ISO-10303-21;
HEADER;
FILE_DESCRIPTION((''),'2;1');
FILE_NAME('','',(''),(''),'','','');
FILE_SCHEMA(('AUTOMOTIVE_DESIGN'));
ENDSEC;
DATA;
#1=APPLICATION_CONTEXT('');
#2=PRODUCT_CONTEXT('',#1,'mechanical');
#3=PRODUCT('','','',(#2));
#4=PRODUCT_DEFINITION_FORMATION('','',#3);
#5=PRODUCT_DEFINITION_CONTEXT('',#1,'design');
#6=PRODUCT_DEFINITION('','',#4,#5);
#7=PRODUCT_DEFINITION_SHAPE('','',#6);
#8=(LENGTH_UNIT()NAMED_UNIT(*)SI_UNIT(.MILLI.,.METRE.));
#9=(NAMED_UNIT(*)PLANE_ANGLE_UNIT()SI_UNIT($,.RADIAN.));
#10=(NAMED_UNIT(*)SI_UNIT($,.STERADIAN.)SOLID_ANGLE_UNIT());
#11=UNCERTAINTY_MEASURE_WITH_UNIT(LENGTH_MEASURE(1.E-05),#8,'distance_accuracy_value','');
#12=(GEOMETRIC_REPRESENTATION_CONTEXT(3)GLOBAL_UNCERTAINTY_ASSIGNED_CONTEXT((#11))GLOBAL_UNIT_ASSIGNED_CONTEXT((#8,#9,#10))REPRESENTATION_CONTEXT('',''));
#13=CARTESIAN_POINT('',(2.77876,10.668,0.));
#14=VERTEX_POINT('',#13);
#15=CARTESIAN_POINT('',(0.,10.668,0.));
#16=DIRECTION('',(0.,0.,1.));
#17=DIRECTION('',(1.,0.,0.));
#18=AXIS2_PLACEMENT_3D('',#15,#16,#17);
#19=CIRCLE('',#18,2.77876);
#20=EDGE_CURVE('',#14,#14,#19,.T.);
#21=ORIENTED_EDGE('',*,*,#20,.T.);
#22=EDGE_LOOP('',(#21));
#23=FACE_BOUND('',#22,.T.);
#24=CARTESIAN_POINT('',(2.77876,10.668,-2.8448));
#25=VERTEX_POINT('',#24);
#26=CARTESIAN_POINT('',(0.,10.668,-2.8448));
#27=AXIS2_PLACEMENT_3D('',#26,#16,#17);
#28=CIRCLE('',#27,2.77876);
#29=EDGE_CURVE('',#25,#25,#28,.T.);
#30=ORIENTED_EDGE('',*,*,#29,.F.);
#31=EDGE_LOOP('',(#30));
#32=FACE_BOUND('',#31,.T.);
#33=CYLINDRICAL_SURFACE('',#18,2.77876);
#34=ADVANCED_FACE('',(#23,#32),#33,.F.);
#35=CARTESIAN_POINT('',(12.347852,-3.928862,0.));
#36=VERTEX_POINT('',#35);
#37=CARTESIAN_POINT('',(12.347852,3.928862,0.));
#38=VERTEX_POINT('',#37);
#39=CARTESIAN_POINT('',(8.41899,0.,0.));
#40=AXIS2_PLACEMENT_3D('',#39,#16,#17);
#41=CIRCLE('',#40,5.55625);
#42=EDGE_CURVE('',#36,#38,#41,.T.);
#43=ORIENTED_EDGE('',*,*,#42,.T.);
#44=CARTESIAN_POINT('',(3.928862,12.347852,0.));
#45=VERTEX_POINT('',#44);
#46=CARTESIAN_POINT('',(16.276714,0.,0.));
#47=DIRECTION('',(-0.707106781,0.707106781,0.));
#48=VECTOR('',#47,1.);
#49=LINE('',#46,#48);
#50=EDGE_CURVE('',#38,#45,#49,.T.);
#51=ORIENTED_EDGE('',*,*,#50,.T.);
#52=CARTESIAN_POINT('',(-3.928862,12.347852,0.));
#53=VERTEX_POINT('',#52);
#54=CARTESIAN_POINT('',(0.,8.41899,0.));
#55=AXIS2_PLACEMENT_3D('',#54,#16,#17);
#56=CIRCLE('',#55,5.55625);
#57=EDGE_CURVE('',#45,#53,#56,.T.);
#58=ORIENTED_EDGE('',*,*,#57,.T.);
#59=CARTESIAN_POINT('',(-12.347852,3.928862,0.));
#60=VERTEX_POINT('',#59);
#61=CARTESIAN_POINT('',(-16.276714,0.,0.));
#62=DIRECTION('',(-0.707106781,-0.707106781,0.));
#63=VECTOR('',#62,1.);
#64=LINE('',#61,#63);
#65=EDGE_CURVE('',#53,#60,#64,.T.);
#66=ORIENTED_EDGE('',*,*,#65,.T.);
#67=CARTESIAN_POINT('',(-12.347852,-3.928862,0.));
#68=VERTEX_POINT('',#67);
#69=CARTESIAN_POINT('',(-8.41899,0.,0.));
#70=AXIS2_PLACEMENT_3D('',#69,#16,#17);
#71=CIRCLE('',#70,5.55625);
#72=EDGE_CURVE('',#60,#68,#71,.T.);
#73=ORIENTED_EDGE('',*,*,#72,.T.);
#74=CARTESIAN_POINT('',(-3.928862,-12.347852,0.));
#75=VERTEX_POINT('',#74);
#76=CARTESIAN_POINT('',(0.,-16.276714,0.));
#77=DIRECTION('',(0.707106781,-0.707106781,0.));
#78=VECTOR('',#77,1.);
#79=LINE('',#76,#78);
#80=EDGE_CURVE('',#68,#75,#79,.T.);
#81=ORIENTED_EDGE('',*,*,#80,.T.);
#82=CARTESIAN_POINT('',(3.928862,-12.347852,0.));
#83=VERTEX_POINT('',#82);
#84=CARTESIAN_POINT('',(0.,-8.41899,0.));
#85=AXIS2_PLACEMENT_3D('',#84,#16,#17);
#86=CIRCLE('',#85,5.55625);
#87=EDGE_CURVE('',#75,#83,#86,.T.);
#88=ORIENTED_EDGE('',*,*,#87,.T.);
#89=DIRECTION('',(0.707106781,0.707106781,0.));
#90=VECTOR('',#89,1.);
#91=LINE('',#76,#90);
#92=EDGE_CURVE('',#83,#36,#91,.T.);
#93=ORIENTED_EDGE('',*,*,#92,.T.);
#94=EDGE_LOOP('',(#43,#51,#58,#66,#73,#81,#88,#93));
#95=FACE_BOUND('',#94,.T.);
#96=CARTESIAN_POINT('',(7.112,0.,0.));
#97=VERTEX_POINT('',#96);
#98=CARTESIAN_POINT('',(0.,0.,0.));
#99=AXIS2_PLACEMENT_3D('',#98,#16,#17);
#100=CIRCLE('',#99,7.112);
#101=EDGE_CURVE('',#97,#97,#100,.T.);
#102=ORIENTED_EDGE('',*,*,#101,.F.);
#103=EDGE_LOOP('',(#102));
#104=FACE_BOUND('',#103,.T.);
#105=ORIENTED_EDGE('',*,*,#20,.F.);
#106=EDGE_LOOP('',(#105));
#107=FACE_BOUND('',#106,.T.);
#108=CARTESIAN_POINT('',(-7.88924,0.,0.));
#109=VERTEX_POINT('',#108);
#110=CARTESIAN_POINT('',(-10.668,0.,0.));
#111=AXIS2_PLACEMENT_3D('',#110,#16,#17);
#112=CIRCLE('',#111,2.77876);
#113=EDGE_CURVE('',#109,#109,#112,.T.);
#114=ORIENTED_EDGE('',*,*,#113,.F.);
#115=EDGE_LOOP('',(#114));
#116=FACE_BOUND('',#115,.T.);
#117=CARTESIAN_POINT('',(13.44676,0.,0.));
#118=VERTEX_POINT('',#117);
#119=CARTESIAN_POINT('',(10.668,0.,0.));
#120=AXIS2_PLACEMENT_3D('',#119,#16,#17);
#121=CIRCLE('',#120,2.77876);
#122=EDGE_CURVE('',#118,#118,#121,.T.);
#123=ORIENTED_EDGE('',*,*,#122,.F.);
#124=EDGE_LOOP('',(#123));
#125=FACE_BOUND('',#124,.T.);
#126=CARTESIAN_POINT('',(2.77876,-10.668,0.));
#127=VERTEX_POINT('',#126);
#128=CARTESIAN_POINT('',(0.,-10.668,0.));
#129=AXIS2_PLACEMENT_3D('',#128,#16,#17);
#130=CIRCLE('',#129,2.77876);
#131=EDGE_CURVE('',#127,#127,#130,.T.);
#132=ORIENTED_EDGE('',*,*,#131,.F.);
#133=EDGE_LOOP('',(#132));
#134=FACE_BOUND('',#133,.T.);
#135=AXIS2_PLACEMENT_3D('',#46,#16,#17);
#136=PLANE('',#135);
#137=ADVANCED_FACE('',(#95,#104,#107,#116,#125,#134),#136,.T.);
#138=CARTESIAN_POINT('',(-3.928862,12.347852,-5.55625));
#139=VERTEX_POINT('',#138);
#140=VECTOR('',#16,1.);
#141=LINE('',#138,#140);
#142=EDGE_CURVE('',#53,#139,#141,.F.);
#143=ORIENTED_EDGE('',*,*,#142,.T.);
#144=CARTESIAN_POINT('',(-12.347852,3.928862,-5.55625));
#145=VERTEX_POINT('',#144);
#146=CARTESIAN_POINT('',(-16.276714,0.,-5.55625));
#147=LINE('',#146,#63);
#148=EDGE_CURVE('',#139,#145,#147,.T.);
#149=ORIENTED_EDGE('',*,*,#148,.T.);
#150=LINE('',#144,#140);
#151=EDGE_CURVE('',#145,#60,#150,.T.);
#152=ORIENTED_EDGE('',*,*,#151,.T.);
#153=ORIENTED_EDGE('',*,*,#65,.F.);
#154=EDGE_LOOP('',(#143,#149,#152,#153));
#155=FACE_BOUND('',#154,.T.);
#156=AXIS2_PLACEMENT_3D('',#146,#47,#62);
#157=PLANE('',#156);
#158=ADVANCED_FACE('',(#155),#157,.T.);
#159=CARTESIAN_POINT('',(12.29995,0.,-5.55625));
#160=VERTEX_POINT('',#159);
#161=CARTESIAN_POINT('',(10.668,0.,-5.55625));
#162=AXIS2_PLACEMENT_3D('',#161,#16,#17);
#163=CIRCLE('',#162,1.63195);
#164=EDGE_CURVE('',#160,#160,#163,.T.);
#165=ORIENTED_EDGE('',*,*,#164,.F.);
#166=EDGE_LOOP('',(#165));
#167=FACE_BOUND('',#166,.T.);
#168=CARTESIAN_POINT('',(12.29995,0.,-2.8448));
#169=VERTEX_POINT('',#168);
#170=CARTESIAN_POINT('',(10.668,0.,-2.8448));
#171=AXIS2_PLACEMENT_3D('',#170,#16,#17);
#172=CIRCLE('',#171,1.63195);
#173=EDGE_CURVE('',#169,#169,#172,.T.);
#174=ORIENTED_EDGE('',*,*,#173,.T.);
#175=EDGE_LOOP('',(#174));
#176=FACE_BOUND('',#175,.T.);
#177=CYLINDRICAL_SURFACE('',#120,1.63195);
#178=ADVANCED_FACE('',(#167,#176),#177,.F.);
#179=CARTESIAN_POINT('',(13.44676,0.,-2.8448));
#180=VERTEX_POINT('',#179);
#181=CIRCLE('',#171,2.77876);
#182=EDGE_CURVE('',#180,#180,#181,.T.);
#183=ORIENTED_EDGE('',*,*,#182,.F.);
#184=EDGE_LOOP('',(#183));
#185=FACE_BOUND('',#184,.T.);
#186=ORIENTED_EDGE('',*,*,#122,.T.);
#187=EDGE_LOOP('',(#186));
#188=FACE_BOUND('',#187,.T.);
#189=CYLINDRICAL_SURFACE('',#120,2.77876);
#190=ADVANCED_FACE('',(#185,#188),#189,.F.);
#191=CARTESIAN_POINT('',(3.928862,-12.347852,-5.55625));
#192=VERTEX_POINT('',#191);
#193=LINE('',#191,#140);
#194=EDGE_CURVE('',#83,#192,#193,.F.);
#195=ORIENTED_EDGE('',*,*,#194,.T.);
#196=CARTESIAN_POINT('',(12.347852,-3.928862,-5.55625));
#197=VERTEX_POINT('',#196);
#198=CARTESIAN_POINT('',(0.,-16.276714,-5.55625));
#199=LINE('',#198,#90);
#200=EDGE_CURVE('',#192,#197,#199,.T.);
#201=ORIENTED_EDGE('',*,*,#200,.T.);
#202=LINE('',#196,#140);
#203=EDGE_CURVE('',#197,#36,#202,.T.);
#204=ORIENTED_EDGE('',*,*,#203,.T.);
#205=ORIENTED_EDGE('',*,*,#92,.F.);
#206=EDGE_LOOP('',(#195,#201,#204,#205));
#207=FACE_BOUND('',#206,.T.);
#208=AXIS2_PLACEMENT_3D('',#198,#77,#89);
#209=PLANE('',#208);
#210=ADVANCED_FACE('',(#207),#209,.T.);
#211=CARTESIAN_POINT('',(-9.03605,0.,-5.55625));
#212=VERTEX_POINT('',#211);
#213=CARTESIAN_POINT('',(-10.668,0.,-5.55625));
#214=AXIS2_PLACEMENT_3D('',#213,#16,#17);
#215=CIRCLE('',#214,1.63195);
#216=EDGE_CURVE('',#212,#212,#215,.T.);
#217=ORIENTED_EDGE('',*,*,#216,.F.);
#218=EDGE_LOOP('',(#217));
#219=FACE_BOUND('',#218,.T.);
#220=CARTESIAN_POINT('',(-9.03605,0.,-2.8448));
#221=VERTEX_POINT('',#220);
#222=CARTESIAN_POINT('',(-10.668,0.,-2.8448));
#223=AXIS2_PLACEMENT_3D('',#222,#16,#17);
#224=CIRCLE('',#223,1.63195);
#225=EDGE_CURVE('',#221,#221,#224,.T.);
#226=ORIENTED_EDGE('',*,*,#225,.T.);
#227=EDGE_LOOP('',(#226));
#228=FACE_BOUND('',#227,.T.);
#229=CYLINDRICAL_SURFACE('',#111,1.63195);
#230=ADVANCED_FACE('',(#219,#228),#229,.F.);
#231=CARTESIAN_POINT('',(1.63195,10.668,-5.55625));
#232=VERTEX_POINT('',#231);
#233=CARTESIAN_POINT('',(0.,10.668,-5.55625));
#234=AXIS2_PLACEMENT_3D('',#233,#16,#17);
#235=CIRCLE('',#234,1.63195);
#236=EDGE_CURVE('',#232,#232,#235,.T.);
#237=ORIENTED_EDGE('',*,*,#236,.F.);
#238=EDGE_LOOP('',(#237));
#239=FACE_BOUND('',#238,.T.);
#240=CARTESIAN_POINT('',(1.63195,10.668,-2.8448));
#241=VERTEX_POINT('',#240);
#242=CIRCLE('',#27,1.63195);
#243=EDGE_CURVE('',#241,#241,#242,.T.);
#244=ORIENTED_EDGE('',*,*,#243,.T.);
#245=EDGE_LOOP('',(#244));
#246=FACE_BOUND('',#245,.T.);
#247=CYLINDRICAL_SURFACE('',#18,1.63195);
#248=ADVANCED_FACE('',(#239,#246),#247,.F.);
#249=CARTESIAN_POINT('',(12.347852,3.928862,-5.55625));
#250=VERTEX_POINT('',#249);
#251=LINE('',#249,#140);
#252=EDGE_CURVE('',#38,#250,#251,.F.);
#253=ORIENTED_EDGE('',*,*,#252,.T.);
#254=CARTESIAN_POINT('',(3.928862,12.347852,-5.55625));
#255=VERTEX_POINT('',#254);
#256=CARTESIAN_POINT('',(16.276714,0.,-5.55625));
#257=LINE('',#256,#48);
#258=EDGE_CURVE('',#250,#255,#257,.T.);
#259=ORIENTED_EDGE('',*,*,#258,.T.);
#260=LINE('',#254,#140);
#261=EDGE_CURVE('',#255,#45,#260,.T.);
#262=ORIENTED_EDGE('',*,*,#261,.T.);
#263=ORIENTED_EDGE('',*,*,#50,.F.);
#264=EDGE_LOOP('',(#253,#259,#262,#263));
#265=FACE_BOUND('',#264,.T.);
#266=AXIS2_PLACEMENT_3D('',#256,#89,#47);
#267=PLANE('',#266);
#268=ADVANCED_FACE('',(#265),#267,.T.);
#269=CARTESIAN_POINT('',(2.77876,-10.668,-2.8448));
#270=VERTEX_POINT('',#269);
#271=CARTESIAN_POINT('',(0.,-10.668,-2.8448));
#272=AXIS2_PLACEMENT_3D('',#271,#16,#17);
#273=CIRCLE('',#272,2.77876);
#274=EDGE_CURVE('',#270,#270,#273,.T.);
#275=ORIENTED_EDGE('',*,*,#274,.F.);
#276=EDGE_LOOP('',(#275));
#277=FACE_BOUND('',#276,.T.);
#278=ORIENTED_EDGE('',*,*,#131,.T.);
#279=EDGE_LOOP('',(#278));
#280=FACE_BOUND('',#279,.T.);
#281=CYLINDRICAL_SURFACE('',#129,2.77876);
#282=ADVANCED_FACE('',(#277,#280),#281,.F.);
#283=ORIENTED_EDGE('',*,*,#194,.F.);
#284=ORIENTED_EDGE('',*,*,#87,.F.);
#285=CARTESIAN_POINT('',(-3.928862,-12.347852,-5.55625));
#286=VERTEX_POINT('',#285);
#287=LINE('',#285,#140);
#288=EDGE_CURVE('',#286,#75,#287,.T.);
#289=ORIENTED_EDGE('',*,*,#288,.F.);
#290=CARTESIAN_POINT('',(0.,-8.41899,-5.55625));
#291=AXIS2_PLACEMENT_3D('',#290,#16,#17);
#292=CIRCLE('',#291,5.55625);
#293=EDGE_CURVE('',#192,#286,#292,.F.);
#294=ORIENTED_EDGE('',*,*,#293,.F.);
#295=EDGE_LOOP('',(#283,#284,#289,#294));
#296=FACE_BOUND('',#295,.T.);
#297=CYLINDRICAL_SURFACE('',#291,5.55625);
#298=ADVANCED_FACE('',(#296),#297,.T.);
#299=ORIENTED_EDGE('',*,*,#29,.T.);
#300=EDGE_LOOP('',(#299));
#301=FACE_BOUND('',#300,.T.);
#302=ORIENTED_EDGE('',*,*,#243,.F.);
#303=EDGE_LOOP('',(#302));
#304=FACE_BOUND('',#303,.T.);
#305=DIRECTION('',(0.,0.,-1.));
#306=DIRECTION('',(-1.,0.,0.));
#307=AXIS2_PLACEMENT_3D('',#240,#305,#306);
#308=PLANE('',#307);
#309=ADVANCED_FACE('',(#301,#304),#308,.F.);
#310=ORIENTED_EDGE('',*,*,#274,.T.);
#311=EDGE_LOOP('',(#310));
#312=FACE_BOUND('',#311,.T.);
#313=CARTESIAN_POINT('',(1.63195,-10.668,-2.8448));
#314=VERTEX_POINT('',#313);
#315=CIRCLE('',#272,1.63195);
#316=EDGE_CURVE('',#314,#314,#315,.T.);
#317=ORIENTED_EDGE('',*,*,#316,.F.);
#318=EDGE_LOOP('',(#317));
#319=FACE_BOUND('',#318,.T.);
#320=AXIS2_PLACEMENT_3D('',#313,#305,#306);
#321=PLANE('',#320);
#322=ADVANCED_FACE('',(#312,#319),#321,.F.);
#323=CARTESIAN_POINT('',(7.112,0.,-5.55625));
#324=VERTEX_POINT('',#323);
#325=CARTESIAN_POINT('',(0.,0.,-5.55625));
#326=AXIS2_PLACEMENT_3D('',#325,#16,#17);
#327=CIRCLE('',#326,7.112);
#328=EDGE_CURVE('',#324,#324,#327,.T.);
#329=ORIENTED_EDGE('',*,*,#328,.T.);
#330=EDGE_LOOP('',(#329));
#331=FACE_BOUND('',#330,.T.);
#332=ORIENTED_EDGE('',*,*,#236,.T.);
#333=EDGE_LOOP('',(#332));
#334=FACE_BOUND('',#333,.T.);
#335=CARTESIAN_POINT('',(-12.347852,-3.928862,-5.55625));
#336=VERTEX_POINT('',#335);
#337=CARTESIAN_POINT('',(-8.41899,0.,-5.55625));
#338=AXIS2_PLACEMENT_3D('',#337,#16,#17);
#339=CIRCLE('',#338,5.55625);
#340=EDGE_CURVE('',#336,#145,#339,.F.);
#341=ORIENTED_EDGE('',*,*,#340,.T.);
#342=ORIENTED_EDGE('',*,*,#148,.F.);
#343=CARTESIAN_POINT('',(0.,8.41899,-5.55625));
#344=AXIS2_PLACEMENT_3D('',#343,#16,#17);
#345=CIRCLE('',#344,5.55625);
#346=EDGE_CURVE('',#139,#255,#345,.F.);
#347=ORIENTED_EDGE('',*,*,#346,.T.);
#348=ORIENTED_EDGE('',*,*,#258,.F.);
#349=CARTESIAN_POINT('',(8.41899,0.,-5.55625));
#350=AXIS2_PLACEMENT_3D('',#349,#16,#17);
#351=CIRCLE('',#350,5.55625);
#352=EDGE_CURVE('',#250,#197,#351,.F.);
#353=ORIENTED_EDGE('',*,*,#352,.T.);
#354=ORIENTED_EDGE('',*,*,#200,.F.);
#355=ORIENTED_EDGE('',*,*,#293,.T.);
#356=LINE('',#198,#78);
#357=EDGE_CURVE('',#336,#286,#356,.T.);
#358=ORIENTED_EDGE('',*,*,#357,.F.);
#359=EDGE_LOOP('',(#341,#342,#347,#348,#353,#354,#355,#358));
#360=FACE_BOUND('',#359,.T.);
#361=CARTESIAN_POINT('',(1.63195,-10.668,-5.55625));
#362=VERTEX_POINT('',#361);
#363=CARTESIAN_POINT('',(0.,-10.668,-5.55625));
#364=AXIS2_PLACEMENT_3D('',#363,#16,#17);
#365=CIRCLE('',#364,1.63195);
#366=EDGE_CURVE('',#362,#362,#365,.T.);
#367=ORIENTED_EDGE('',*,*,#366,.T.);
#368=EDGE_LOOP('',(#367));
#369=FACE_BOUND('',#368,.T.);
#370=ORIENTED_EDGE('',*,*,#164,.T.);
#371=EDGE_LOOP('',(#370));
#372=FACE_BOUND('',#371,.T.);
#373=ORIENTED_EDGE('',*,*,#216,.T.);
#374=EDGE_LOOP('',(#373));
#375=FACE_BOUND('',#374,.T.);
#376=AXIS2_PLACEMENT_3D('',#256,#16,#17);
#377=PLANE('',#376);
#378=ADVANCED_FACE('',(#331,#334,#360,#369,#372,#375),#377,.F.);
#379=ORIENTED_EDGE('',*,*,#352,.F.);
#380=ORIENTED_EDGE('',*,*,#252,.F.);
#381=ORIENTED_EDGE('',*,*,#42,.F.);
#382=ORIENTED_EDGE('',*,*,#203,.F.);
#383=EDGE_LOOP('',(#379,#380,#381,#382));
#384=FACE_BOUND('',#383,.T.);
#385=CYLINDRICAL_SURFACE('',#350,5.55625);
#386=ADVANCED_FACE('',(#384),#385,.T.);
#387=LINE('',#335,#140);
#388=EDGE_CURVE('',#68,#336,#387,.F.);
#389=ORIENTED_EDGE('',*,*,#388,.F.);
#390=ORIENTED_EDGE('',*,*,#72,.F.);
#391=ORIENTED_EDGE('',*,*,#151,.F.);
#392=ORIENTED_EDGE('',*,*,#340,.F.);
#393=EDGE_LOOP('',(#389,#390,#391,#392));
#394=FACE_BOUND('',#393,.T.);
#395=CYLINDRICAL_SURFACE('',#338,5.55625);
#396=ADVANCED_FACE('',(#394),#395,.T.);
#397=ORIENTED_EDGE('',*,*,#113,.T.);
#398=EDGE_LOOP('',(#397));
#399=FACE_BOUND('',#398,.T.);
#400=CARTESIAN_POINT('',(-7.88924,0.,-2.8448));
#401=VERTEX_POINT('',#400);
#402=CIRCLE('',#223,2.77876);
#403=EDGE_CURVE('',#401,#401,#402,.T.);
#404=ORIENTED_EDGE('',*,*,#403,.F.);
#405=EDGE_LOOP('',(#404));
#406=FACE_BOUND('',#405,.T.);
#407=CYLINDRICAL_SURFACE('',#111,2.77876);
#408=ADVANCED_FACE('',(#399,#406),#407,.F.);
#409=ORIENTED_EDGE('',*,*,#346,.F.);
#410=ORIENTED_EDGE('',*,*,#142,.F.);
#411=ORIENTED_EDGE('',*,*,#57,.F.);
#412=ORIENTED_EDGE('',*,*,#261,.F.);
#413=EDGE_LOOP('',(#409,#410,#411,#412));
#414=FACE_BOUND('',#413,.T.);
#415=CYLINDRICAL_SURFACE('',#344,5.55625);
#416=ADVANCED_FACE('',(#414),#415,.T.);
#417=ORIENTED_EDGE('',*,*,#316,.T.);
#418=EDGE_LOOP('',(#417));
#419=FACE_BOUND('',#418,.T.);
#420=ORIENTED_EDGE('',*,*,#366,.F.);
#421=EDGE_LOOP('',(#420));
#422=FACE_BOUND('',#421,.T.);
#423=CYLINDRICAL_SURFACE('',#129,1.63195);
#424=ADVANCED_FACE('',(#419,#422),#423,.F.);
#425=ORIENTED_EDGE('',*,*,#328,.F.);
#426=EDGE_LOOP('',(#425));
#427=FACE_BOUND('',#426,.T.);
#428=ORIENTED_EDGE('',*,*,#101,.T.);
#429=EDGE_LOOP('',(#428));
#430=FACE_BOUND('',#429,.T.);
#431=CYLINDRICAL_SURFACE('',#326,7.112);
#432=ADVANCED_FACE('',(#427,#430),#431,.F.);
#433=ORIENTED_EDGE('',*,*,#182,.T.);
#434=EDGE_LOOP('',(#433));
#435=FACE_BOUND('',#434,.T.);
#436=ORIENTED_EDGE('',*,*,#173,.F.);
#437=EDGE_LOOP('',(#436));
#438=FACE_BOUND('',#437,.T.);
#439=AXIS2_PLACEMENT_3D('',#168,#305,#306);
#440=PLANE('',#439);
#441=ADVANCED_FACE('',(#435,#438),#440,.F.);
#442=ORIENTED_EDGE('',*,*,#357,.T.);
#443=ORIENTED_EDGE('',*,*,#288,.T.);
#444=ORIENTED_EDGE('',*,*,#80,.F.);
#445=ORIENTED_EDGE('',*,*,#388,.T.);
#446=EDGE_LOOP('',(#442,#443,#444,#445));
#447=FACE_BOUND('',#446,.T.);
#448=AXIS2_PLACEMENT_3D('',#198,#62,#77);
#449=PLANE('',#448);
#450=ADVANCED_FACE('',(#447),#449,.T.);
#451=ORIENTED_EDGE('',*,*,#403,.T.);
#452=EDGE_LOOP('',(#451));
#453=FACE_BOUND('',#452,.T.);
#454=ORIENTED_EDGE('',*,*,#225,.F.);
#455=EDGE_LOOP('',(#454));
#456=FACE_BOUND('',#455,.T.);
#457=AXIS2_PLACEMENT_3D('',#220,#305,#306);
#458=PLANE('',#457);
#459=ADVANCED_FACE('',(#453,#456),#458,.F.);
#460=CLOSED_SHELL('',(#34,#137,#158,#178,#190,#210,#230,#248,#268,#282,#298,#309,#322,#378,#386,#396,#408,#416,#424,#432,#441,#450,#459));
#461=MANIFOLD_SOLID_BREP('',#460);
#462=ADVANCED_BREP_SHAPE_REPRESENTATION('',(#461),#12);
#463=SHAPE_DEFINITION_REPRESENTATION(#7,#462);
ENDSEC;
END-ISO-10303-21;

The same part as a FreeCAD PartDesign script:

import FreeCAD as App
import Part
import Sketcher
from FreeCAD import Vector
Q = App.Units.Quantity


def edges_at(feature, points):
    """Names of the edges that pass closest to the given points."""
    edges = feature.Shape.Edges
    near = lambda p: min(range(len(edges)), key=lambda i: edges[i].distToShape(Part.Vertex(*p))[0])
    return sorted({f"Edge{near(p) + 1}" for p in points})


def add_polygon(sketch, points):
    """Adds a closed chain of lines whose ends are joined by coincident constraints."""
    first, n = sketch.GeometryCount, len(points)
    for a, b in zip(points, points[1:] + points[:1]):
        sketch.addGeometry(Part.LineSegment(App.Vector(*a, 0), App.Vector(*b, 0)), False)
    for i in range(n):
        sketch.addConstraint(Sketcher.Constraint("Coincident", first + i, 2, first + (i + 1) % n, 1))

doc = App.newDocument("Part")
body = doc.addObject("PartDesign::Body", "Body")

# Sketch on XY plane
sketch1 = body.newObject("Sketcher::SketchObject", "Sketch")
sketch1.AttachmentSupport = (doc.getObject("XY_Plane"), [""])
sketch1.MapMode = "FlatFace"
add_polygon(sketch1, [(-16.276714, 0), (0, -16.276714), (16.276714, 0), (0, 16.276714)])  # lines 0-3
sketch1.addConstraint(Sketcher.Constraint("Symmetric", 0, 2, 2, 2, -1, 1))
sketch1.addConstraint(Sketcher.Constraint("Symmetric", 1, 2, 3, 2, -1, 1))
sketch1.addConstraint(Sketcher.Constraint("PointOnObject", 0, 2, -2))
sketch1.addConstraint(Sketcher.Constraint("PointOnObject", 1, 2, -1))
sketch1.addConstraint(Sketcher.Constraint("Perpendicular", 0, 1))
sketch1.addConstraint(Sketcher.Constraint("Distance", 0, Q("0.90625 in")))
pad1 = body.newObject("PartDesign::Pad", "Pad")
pad1.Profile = sketch1
pad1.Length = Q("0.21875 in")
pad1.Reversed = True

# Sketch on XY plane
sketch2 = body.newObject("Sketcher::SketchObject", "Sketch001")
sketch2.AttachmentSupport = (doc.getObject("XY_Plane"), [""])
sketch2.MapMode = "FlatFace"
sketch2.addGeometry(Part.Circle(Vector(0, 0, 0), Vector(0, 0, 1), 7.112), False)
sketch2.addConstraint(Sketcher.Constraint("Coincident", 0, 3, -1, 1))
sketch2.addConstraint(Sketcher.Constraint("Diameter", 0, Q("0.56 in")))
pocket1 = body.newObject("PartDesign::Pocket", "Pocket")
pocket1.Profile = sketch2
pocket1.Type = "ThroughAll"

# Sketch on XY plane
sketch3 = body.newObject("Sketcher::SketchObject", "Sketch002")
sketch3.AttachmentSupport = (doc.getObject("XY_Plane"), [""])
sketch3.MapMode = "FlatFace"
sketch3.addGeometry(Part.Circle(Vector(0, 10.668, 0), Vector(0, 0, 1), 1.63195), False)
sketch3.addConstraint(Sketcher.Constraint("PointOnObject", 0, 3, -2))
sketch3.addConstraint(Sketcher.Constraint("Diameter", 0, Q("0.1285 in")))
sketch3.addConstraint(Sketcher.Constraint("DistanceY", -1, 1, 0, 3, Q("0.42 in")))
doc.recompute()
hole = body.newObject("PartDesign::Hole", "Hole")
hole.Profile = sketch3
hole.ThreadType = "None"
hole.Diameter = Q("0.1285 in")
hole.DepthType = "ThroughAll"
hole.HoleCutType = "Counterbore"
hole.HoleCutDiameter = Q("0.2188 in")
hole.HoleCutDepth = Q("0.112 in")
doc.recompute()

polarpattern = body.newObject("PartDesign::PolarPattern", "PolarPattern")
polarpattern.Originals = [hole]
polarpattern.Axis = (doc.getObject("Z_Axis"), [""])
polarpattern.Angle = 360
polarpattern.Occurrences = 4
body.Tip = polarpattern
doc.recompute()

fillet = body.newObject("PartDesign::Fillet", "Fillet")
fillet.Base = (polarpattern, edges_at(polarpattern, [
    (0, -16.277, -2.778),
    (-16.277, 0, -2.778),
    (0, 16.277, -2.778),
    (16.277, 0, -2.778),
]))
fillet.Radius = Q("0.21875 in")

doc.recompute()
